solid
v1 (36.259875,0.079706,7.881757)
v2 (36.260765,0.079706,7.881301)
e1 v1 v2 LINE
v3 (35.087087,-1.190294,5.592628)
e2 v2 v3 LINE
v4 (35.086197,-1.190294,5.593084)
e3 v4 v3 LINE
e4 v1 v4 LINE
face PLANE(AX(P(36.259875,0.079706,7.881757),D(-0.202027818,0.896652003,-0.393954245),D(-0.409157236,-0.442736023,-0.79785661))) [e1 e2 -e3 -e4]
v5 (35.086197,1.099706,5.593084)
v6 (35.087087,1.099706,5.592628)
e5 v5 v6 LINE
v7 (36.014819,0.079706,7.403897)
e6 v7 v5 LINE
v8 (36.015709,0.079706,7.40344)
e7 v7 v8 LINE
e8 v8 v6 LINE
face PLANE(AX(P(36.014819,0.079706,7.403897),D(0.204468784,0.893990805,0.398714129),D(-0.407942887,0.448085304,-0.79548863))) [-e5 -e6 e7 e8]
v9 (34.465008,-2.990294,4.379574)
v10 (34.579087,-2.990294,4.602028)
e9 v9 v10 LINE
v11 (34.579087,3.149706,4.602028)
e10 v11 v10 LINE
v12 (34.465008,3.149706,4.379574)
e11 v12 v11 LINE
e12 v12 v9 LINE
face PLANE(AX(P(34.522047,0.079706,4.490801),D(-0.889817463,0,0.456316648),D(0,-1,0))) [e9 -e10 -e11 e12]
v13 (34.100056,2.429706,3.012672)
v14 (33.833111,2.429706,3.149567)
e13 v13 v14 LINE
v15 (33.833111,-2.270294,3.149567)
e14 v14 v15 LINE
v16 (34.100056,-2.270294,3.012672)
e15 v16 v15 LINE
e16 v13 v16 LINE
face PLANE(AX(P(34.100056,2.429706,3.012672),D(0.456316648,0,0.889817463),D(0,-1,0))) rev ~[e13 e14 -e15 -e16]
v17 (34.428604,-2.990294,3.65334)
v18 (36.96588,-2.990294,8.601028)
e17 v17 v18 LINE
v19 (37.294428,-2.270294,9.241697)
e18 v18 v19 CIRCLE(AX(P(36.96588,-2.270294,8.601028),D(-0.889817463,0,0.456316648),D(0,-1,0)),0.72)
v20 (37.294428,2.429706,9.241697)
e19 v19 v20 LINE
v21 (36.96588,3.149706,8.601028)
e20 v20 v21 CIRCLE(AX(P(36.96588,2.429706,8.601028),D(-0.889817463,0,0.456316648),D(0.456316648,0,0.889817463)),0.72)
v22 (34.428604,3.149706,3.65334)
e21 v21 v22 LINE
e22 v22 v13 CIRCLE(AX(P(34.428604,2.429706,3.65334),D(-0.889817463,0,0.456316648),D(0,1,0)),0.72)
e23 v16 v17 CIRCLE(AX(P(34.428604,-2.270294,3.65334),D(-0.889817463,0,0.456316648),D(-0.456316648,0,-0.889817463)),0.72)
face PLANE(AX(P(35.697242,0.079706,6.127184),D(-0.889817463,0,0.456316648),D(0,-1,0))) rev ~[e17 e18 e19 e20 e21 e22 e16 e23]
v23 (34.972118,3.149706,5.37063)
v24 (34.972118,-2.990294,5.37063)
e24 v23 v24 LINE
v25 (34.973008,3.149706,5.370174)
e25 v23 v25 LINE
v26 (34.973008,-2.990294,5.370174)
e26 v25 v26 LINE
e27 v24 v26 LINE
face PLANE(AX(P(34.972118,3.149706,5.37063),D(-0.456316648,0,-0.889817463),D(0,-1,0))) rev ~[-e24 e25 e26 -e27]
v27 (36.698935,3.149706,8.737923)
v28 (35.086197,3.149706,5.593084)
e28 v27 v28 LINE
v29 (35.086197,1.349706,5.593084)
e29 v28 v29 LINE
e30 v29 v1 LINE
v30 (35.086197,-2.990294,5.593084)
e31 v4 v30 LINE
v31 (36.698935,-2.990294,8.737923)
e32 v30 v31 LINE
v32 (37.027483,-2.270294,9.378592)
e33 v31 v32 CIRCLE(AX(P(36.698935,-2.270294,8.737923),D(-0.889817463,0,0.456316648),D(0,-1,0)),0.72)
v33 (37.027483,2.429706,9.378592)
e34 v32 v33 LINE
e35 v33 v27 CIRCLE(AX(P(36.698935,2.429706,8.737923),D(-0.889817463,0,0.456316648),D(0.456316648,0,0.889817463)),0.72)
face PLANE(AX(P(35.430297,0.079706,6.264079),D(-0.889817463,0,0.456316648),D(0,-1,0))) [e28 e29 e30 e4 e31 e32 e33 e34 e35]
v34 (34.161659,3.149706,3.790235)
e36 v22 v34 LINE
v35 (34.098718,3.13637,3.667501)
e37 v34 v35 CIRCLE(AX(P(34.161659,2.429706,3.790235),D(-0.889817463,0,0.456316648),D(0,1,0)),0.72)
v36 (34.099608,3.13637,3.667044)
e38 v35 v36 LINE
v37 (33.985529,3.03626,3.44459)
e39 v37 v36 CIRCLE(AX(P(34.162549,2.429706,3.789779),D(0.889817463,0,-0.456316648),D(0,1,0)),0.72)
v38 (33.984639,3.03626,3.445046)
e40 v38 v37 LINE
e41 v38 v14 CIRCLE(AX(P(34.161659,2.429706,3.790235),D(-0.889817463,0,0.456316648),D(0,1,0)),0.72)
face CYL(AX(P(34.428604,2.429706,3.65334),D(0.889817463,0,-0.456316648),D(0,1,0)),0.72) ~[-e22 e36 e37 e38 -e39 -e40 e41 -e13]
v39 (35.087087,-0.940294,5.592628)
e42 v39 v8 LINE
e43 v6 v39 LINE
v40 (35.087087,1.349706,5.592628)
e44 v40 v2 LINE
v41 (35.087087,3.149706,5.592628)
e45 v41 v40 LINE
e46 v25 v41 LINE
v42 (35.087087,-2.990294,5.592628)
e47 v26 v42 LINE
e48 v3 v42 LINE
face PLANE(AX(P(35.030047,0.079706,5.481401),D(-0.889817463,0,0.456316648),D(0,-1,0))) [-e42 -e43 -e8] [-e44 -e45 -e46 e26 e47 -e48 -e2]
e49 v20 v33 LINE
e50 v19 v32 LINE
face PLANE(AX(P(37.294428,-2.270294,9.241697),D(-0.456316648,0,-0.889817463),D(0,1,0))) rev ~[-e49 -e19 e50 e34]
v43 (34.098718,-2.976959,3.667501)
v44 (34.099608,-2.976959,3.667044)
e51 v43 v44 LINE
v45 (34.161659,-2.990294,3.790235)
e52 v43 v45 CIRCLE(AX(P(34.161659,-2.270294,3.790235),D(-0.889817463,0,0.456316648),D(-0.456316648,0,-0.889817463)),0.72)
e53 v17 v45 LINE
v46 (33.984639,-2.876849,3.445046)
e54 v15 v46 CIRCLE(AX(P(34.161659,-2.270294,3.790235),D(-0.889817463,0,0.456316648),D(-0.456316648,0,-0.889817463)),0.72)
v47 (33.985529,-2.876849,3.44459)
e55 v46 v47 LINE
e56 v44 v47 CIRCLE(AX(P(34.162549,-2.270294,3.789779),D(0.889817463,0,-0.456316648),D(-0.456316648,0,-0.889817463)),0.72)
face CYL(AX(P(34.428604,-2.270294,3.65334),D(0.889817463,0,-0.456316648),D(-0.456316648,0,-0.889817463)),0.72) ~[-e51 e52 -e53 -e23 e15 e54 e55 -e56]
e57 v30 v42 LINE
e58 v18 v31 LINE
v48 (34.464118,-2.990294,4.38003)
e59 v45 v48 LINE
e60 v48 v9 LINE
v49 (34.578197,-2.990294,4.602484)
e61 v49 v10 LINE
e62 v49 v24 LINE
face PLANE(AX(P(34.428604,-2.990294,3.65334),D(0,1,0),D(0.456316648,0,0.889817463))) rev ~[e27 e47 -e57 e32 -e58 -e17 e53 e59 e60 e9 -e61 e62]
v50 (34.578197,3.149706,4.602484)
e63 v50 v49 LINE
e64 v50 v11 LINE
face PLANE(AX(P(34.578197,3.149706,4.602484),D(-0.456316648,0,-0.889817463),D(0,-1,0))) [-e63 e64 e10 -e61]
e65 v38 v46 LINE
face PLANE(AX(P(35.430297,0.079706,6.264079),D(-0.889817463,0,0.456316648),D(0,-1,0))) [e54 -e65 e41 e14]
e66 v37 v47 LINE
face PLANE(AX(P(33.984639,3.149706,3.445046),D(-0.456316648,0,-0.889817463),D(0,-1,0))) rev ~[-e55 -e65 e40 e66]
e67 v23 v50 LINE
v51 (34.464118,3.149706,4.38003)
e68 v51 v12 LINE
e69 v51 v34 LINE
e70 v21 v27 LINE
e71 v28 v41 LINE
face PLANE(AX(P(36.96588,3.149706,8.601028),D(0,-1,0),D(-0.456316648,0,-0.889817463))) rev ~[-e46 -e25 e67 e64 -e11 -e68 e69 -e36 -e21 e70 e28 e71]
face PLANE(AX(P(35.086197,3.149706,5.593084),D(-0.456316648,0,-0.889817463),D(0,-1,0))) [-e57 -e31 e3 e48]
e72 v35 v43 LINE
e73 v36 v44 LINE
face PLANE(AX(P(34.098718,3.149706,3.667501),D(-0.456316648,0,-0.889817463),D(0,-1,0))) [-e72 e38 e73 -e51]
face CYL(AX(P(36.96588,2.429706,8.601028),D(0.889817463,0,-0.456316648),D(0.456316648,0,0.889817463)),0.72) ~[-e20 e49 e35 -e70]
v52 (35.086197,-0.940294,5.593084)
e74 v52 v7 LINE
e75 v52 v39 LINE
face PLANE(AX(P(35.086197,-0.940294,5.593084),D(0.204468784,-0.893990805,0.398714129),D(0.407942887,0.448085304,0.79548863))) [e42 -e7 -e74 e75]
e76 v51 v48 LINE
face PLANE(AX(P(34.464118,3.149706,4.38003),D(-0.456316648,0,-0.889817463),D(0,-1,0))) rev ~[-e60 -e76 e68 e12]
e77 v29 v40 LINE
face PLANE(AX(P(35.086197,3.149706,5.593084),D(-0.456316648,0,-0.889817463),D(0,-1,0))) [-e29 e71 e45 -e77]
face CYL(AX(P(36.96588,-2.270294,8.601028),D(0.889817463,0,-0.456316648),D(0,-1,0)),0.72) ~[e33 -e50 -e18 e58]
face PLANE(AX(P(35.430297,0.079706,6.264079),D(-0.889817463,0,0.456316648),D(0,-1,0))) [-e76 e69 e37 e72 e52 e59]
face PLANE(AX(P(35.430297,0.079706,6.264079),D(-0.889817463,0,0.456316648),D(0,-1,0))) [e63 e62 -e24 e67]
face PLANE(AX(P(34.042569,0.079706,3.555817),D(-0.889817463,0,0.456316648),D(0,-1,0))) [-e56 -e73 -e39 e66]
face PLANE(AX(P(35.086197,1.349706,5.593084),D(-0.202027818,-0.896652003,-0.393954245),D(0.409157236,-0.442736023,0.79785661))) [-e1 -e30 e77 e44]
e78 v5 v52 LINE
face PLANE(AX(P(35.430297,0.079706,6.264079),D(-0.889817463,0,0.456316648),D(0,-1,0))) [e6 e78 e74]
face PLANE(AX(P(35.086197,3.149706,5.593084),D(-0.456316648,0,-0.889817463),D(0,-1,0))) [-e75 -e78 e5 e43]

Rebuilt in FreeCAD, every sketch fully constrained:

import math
import FreeCAD as App
import Part
import Sketcher
from FreeCAD import Vector
Q = App.Units.Quantity

doc = App.newDocument("Part")
body = doc.addObject("PartDesign::Body", "Body")

# Sketch on an angled plane
sketch1 = body.newObject("Sketcher::SketchObject", "Sketch")
sketch1.Placement = App.Placement(Vector(25.776315, 0, -13.218623), App.Rotation(Vector(0, -1, 0), Vector(0.456316648, 0, 0.889817463), Vector(-0.889817463, 0, 0.456316648), "ZXY"))
sketch1.addGeometry([
    Part.LineSegment(Vector(-3.149706, 24.521491, 0), Vector(-3.149706, 18.961151, 0)),  # 0
    Part.ArcOfCircle(Part.Circle(Vector(-2.429706, 18.961151, 0), Vector(0, 0, 1), 0.72), math.radians(-180), math.radians(-90)),  # 1
    Part.LineSegment(Vector(-2.429706, 18.241151, 0), Vector(2.270294, 18.241151, 0)),  # 2
    Part.ArcOfCircle(Part.Circle(Vector(2.270294, 18.961151, 0), Vector(0, 0, 1), 0.72), math.radians(-90), math.radians(0)),  # 3
    Part.LineSegment(Vector(2.990294, 18.961151, 0), Vector(2.990294, 24.521491, 0)),  # 4
    Part.ArcOfCircle(Part.Circle(Vector(2.270294, 24.521491, 0), Vector(0, 0, 1), 0.72), math.radians(0), math.radians(90)),  # 5
    Part.LineSegment(Vector(2.270294, 25.241491, 0), Vector(-2.429706, 25.241491, 0)),  # 6
    Part.ArcOfCircle(Part.Circle(Vector(-2.429706, 24.521491, 0), Vector(0, 0, 1), 0.72), math.radians(90), math.radians(180)),  # 7
], False)
sketch1.addConstraint([
    Sketcher.Constraint("Tangent", 0, 2, 1, 1),
    Sketcher.Constraint("Tangent", 1, 2, 2, 1),
    Sketcher.Constraint("Tangent", 2, 2, 3, 1),
    Sketcher.Constraint("Tangent", 3, 2, 4, 1),
    Sketcher.Constraint("Tangent", 4, 2, 5, 1),
    Sketcher.Constraint("Tangent", 5, 2, 6, 1),
    Sketcher.Constraint("Tangent", 6, 2, 7, 1),
    Sketcher.Constraint("Tangent", 7, 2, 0, 1),
    Sketcher.Constraint("Vertical", 0),
    Sketcher.Constraint("Horizontal", 2),
    Sketcher.Constraint("Vertical", 4),
    Sketcher.Constraint("Horizontal", 6),
    Sketcher.Constraint("Equal", 1, 3),
    Sketcher.Constraint("Equal", 3, 5),
    Sketcher.Constraint("Equal", 5, 7),
    Sketcher.Constraint("Radius", 1, Q("0.72 mm")),
    Sketcher.Constraint("DistanceX", 2, 1, 2, 2, Q("4.7 mm")),
    Sketcher.Constraint("DistanceY", 0, 2, 0, 1, Q("5.56034 mm")),
    Sketcher.Constraint("DistanceY", -1, 1, 1, 3, Q("18.961151 mm")),
    Sketcher.Constraint("DistanceX", 1, 3, -1, 1, Q("2.429706 mm")),
])
pad1 = body.newObject("PartDesign::Pad", "Pad")
pad1.Profile = sketch1
pad1.Length = 0.3

# Sketch on an angled plane
sketch2 = body.newObject("Sketcher::SketchObject", "Sketch001")
sketch2.Placement = App.Placement(Vector(25.50937, 0, -13.081728), App.Rotation(Vector(0, -1, 0), Vector(0.456316648, 0, 0.889817463), Vector(-0.889817463, 0, 0.456316648), "ZXY"))
sketch2.addGeometry([
    Part.LineSegment(Vector(-3.149706, 19.873978, 0), Vector(-3.149706, 19.623978, 0)),  # 0
    Part.LineSegment(Vector(-3.149706, 19.623978, 0), Vector(2.990294, 19.623978, 0)),  # 1
    Part.LineSegment(Vector(2.990294, 19.623978, 0), Vector(2.990294, 19.873978, 0)),  # 2
    Part.LineSegment(Vector(2.990294, 19.873978, 0), Vector(-3.149706, 19.873978, 0)),  # 3
    Part.LineSegment(Vector(-3.149706, 18.823219, 0), Vector(-3.149706, 18.573219, 0)),  # 4
    Part.LineSegment(Vector(-3.149706, 18.573219, 0), Vector(2.990294, 18.573219, 0)),  # 5
    Part.LineSegment(Vector(2.990294, 18.573219, 0), Vector(2.990294, 18.823219, 0)),  # 6
    Part.LineSegment(Vector(2.990294, 18.823219, 0), Vector(-3.149706, 18.823219, 0)),  # 7
    Part.LineSegment(Vector(-3.149706, 20.98724, 0), Vector(-3.149706, 20.73724, 0)),  # 8
    Part.LineSegment(Vector(-3.149706, 20.73724, 0), Vector(2.990294, 20.73724, 0)),  # 9
    Part.LineSegment(Vector(2.990294, 20.73724, 0), Vector(2.990294, 20.98724, 0)),  # 10
    Part.LineSegment(Vector(2.990294, 20.98724, 0), Vector(-3.149706, 20.98724, 0)),  # 11
], False)
sketch2.addConstraint([
    Sketcher.Constraint("Coincident", 0, 2, 1, 1),
    Sketcher.Constraint("Coincident", 1, 2, 2, 1),
    Sketcher.Constraint("Coincident", 2, 2, 3, 1),
    Sketcher.Constraint("Coincident", 3, 2, 0, 1),
    Sketcher.Constraint("Coincident", 4, 2, 5, 1),
    Sketcher.Constraint("Coincident", 5, 2, 6, 1),
    Sketcher.Constraint("Coincident", 6, 2, 7, 1),
    Sketcher.Constraint("Coincident", 7, 2, 4, 1),
    Sketcher.Constraint("Coincident", 8, 2, 9, 1),
    Sketcher.Constraint("Coincident", 9, 2, 10, 1),
    Sketcher.Constraint("Coincident", 10, 2, 11, 1),
    Sketcher.Constraint("Coincident", 11, 2, 8, 1),
    Sketcher.Constraint("Vertical", 0),
    Sketcher.Constraint("Horizontal", 1),
    Sketcher.Constraint("Vertical", 2),
    Sketcher.Constraint("Horizontal", 3),
    Sketcher.Constraint("Vertical", 4),
    Sketcher.Constraint("Horizontal", 5),
    Sketcher.Constraint("Vertical", 6),
    Sketcher.Constraint("Horizontal", 7),
    Sketcher.Constraint("Vertical", 8),
    Sketcher.Constraint("Horizontal", 9),
    Sketcher.Constraint("Vertical", 10),
    Sketcher.Constraint("Horizontal", 11),
    Sketcher.Constraint("Vertical", 3, 2, 4, 2),
    Sketcher.Constraint("Vertical", 2, 2, 5, 2),
    Sketcher.Constraint("Vertical", 7, 2, 8, 2),
    Sketcher.Constraint("Vertical", 6, 2, 9, 2),
    Sketcher.Constraint("Equal", 2, 4),
    Sketcher.Constraint("Equal", 6, 8),
    Sketcher.Constraint("DistanceX", 1, 1, 1, 2, Q("6.14 mm")),
    Sketcher.Constraint("DistanceY", 0, 2, 0, 1, Q("0.25 mm")),
    Sketcher.Constraint("DistanceY", -1, 1, 0, 2, Q("19.623978 mm")),
    Sketcher.Constraint("DistanceY", -1, 1, 4, 2, Q("18.573219 mm")),
    Sketcher.Constraint("DistanceY", -1, 1, 8, 2, Q("20.73724 mm")),
    Sketcher.Constraint("DistanceX", 0, 2, -1, 1, Q("3.149706 mm")),
])
pocket1 = body.newObject("PartDesign::Pocket", "Pocket")
pocket1.Profile = sketch2
pocket1.Length = 0.001

# Sketch on an angled plane
sketch3 = body.newObject("Sketcher::SketchObject", "Sketch002")
sketch3.Placement = App.Placement(Vector(25.50937, 0, -13.081728), App.Rotation(Vector(0, -1, 0), Vector(0.456316648, 0, 0.889817463), Vector(-0.889817463, 0, 0.456316648), "ZXY"))
sketch3.addGeometry([
    Part.LineSegment(Vector(-1.349706, 20.98724, 0), Vector(-1.099706, 20.98724, 0)),  # 0
    Part.LineSegment(Vector(-1.099706, 20.98724, 0), Vector(-0.079706, 23.022278, 0)),  # 1
    Part.LineSegment(Vector(-0.079706, 23.022278, 0), Vector(0.940294, 20.98724, 0)),  # 2
    Part.LineSegment(Vector(0.940294, 20.98724, 0), Vector(1.190294, 20.98724, 0)),  # 3
    Part.LineSegment(Vector(1.190294, 20.98724, 0), Vector(-0.079706, 23.55931, 0)),  # 4
    Part.LineSegment(Vector(-0.079706, 23.55931, 0), Vector(-1.349706, 20.98724, 0)),  # 5
], False)
sketch3.addConstraint([
    Sketcher.Constraint("Coincident", 0, 2, 1, 1),
    Sketcher.Constraint("Coincident", 1, 2, 2, 1),
    Sketcher.Constraint("Coincident", 2, 2, 3, 1),
    Sketcher.Constraint("Coincident", 3, 2, 4, 1),
    Sketcher.Constraint("Coincident", 4, 2, 5, 1),
    Sketcher.Constraint("Coincident", 5, 2, 0, 1),
    Sketcher.Constraint("Horizontal", 0),
    Sketcher.Constraint("Horizontal", 3),
    Sketcher.Constraint("Horizontal", 0, 2, 2, 2),
    Sketcher.Constraint("Vertical", 1, 2, 4, 2),
    Sketcher.Constraint("Equal", 0, 3),
    Sketcher.Constraint("Equal", 1, 2),
    Sketcher.Constraint("DistanceX", 0, 1, 0, 2, Q("0.25 mm")),
    Sketcher.Constraint("DistanceX", 0, 2, 1, 2, Q("1.02 mm")),
    Sketcher.Constraint("DistanceY", -1, 1, 0, 2, Q("20.98724 mm")),
    Sketcher.Constraint("DistanceY", -1, 1, 1, 2, Q("23.022278 mm")),
    Sketcher.Constraint("DistanceY", -1, 1, 4, 2, Q("23.55931 mm")),
    Sketcher.Constraint("DistanceX", 0, 2, -1, 1, Q("1.099706 mm")),
])
pocket2 = body.newObject("PartDesign::Pocket", "Pocket001")
pocket2.Profile = sketch3
pocket2.Length = 0.001

doc.recompute()
